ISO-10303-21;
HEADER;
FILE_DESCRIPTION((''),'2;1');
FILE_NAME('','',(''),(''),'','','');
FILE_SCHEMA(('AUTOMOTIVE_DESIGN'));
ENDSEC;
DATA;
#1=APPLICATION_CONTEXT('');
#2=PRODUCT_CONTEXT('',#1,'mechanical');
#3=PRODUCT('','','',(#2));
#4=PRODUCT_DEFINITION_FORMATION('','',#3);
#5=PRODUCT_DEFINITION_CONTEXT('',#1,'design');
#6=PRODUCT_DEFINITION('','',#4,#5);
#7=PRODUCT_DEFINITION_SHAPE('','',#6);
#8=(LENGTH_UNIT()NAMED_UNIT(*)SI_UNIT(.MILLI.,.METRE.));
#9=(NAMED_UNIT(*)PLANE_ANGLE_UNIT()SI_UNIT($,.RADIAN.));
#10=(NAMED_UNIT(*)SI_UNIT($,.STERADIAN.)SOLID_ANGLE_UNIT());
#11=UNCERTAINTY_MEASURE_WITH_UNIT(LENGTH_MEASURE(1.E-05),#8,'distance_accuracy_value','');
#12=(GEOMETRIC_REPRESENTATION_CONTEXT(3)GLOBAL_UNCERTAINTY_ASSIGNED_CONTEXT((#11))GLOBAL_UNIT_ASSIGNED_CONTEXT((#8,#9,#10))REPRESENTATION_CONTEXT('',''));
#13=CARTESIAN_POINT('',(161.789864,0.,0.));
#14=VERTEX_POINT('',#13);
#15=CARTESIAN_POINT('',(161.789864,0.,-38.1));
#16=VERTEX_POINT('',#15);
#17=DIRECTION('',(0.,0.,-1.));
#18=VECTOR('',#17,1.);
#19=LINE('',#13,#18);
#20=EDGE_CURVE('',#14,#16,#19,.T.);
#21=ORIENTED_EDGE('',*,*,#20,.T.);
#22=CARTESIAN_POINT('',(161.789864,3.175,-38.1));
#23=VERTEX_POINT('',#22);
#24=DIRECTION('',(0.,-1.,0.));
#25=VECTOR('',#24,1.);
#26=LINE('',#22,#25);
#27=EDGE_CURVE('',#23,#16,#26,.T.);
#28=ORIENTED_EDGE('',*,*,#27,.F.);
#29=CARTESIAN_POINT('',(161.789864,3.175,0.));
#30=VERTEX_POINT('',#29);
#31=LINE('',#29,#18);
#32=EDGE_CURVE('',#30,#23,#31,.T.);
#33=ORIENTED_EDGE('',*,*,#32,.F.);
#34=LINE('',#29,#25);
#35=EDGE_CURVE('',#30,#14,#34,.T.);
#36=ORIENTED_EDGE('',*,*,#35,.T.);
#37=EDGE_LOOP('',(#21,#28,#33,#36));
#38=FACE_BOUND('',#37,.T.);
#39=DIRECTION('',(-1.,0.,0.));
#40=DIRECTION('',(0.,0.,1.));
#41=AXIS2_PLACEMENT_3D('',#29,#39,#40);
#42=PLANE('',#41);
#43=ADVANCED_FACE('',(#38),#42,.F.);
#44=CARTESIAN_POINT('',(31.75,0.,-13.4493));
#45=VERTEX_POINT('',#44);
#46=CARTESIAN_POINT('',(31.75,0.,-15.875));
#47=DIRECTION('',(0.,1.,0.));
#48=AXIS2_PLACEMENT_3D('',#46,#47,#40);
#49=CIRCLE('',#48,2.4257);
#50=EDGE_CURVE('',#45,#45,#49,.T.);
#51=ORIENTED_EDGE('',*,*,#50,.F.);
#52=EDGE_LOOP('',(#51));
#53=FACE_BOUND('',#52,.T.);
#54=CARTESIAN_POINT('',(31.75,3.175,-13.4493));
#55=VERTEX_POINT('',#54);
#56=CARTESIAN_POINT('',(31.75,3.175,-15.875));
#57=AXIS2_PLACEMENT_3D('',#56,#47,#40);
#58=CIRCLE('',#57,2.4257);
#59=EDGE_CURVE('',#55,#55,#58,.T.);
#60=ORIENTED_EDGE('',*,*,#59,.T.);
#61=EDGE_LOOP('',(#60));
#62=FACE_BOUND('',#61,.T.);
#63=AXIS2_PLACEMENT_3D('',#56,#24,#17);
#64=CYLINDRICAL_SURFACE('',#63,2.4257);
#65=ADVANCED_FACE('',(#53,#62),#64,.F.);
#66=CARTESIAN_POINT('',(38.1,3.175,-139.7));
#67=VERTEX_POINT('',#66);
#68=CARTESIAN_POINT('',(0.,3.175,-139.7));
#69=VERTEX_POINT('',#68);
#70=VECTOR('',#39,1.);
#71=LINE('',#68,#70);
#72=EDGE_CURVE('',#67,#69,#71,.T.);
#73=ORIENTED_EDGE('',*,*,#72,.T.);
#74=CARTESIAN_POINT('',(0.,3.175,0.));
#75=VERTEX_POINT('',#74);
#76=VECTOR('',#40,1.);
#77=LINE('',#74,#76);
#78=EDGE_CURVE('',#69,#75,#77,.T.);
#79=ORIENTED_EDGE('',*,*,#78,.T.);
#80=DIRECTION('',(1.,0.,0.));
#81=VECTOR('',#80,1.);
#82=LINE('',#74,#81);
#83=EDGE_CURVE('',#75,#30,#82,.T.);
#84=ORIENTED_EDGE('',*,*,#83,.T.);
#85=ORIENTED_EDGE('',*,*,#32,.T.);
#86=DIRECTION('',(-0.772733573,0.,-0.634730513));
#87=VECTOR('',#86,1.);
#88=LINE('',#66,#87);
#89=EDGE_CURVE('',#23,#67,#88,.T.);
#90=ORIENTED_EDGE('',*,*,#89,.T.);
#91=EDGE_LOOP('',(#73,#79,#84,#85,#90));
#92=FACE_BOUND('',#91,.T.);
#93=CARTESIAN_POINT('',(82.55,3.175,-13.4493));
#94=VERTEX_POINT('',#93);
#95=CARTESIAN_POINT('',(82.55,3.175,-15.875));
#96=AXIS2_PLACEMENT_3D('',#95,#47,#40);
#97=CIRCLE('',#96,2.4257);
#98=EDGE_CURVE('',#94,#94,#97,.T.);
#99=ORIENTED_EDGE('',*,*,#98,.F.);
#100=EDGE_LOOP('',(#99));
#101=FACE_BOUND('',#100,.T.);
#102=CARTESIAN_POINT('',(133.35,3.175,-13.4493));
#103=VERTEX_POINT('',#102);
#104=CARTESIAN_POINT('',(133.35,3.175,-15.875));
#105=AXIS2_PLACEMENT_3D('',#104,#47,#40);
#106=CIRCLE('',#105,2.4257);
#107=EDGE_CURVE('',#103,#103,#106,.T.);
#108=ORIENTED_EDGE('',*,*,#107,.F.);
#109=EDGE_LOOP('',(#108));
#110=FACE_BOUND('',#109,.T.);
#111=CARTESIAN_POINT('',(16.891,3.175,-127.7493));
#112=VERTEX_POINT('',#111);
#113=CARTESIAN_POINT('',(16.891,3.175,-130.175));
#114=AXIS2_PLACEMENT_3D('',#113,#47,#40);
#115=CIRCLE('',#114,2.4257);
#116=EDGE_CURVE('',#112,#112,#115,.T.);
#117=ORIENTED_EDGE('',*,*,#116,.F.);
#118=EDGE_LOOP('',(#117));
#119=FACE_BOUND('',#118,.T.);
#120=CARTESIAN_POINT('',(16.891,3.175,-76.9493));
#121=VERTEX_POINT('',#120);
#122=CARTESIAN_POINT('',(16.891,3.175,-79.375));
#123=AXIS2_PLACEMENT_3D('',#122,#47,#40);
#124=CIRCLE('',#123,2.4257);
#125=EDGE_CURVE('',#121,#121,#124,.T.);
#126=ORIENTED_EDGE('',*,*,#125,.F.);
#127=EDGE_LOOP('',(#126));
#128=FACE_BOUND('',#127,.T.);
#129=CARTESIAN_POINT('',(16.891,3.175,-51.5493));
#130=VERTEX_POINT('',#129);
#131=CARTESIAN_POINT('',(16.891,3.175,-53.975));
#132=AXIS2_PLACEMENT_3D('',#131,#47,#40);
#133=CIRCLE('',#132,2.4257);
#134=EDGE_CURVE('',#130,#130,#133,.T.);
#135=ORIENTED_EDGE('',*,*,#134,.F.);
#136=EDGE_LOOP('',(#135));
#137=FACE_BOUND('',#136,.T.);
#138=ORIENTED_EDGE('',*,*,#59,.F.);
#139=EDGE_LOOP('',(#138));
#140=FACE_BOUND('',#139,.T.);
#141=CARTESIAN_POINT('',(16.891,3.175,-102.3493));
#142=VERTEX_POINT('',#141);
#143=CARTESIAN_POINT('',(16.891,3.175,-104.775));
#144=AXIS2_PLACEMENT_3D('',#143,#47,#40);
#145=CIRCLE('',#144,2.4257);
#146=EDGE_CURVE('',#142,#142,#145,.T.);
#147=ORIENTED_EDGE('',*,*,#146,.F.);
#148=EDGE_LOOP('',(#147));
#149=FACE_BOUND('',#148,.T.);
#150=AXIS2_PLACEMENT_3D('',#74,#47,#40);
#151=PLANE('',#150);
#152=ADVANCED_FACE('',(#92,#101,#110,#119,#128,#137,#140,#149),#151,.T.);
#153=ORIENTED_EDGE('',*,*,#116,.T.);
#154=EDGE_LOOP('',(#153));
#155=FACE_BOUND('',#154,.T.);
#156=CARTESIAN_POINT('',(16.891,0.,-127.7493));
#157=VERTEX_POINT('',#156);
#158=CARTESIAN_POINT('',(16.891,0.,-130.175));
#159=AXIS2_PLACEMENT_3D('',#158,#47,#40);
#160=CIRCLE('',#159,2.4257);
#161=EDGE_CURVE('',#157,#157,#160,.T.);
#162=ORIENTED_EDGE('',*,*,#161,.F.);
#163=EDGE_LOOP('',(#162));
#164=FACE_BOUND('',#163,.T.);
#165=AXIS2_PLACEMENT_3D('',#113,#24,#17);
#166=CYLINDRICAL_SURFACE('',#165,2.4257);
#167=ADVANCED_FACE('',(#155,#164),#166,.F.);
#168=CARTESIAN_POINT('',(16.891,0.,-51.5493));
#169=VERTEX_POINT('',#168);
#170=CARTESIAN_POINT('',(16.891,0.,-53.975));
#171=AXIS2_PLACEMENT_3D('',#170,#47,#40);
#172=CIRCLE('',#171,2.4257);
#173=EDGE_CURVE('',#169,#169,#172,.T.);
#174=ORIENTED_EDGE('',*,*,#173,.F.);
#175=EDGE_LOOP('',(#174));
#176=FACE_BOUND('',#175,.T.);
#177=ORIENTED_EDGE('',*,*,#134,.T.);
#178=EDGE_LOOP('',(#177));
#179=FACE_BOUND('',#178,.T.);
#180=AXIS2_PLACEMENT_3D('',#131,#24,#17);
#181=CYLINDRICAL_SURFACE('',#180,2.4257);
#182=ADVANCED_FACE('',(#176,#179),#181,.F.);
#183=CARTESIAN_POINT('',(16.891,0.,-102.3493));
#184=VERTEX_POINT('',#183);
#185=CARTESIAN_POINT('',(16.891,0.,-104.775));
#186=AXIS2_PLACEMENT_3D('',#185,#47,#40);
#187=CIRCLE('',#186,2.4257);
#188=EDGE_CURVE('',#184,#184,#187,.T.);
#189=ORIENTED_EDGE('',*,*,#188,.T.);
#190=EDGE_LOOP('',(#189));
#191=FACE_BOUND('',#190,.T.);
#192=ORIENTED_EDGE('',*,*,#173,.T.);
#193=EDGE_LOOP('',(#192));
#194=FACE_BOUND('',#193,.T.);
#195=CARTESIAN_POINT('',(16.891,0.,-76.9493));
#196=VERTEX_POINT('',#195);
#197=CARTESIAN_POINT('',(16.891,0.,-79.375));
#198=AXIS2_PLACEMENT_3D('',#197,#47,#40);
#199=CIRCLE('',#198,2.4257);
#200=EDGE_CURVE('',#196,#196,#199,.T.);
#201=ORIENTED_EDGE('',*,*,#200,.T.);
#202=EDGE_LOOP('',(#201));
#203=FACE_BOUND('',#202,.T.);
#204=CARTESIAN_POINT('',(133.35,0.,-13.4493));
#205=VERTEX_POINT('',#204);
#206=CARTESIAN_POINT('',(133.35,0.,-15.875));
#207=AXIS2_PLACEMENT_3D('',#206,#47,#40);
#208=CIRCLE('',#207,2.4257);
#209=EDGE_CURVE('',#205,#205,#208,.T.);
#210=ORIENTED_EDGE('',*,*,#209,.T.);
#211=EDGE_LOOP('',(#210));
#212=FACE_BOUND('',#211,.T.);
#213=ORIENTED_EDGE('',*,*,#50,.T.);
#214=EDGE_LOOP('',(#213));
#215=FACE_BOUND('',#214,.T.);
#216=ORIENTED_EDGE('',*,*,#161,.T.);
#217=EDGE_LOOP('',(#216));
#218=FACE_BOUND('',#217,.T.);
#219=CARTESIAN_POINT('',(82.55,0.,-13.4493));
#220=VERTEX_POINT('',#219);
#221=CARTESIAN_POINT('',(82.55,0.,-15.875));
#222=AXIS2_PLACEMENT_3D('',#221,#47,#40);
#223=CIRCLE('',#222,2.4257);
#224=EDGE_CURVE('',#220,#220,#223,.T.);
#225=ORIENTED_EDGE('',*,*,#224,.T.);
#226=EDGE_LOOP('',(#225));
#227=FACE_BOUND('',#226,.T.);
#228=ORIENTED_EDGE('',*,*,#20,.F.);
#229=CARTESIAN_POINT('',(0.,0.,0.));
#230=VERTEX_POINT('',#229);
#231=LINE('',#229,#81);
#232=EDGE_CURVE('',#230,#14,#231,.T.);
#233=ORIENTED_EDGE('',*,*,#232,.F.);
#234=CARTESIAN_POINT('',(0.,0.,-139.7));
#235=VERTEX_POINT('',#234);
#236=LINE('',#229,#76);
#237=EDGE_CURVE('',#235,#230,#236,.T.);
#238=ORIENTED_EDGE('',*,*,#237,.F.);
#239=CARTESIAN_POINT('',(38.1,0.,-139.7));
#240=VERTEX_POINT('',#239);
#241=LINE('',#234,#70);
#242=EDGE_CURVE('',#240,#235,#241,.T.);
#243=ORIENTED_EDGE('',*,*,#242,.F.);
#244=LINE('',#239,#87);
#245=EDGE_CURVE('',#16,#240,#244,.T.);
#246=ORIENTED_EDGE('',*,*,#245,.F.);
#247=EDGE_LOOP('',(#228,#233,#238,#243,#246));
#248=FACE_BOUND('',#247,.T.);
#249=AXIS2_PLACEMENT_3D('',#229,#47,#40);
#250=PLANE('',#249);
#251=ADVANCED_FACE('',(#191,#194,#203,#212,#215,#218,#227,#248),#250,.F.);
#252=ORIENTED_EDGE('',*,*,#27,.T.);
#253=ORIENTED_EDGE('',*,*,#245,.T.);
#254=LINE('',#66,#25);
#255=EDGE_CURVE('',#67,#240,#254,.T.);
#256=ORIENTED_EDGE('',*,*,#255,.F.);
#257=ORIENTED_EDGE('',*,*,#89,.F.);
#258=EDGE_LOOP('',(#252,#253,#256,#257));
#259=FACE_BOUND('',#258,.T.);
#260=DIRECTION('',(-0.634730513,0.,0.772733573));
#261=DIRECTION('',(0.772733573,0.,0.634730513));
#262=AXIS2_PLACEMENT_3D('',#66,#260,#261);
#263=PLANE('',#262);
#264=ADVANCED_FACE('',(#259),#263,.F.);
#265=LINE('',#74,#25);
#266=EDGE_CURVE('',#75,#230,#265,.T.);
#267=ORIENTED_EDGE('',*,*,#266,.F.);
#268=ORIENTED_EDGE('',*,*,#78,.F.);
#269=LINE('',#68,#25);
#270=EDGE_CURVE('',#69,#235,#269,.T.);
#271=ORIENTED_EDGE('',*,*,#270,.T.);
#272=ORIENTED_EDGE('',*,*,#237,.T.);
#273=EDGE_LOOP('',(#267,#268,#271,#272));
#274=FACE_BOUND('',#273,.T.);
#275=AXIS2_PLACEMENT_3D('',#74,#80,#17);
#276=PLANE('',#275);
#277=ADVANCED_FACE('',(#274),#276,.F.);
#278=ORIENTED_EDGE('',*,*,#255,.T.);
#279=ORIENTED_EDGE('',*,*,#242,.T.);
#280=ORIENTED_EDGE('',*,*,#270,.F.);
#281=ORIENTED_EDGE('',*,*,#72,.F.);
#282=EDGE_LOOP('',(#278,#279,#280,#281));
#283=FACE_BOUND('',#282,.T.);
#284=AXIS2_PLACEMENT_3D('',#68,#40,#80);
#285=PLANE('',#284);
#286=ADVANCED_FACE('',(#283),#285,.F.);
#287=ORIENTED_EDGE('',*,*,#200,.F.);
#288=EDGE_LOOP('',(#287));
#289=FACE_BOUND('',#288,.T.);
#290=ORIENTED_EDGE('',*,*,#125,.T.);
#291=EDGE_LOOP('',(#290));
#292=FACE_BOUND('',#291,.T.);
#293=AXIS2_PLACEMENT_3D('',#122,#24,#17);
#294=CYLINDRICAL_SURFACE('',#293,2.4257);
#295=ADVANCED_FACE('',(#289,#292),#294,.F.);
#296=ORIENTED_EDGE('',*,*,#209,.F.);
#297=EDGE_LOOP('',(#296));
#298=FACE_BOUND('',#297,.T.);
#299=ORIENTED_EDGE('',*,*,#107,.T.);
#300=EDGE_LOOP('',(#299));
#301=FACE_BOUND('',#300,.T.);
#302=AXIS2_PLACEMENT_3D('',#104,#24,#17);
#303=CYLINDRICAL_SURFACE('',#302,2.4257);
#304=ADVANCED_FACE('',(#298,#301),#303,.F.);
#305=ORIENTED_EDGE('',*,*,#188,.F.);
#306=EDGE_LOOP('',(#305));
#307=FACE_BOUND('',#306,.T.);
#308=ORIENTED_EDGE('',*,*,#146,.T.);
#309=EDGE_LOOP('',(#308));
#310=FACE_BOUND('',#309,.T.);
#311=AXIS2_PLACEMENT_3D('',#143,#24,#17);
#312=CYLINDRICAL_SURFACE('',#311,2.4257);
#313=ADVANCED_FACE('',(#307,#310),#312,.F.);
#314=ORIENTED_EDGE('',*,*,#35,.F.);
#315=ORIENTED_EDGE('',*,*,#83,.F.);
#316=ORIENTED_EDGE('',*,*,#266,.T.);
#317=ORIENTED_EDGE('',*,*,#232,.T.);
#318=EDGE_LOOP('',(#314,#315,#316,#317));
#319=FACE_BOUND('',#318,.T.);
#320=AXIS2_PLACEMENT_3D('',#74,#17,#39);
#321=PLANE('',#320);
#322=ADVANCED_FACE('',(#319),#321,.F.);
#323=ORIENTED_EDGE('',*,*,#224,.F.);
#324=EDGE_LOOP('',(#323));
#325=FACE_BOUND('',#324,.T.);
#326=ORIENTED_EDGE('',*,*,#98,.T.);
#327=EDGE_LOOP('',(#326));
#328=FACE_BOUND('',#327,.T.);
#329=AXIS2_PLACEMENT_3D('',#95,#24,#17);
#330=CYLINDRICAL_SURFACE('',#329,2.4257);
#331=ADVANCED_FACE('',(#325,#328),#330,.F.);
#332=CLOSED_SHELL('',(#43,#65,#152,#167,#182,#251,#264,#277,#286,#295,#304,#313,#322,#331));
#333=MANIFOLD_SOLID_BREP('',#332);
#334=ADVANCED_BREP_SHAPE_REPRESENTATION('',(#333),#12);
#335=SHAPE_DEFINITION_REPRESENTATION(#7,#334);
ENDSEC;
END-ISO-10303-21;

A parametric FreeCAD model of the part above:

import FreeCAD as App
import Part
import Sketcher
Q = App.Units.Quantity

doc = App.newDocument("Part")
params = doc.addObject("Spreadsheet::Sheet", "Params")
for row, (alias, value) in enumerate([
    ("sketch1_diameter", "0.191 in"),
    ("sketch1_width", "1.5 in"),
    ("sketch1_height", "5.5 in"),
    ("pad1_length", "0.125 in"),
], start=1):
    params.set(f"A{row}", alias)
    params.set(f"B{row}", "=" + value)
    params.setAlias(f"B{row}", alias)

body = doc.addObject("PartDesign::Body", "Body")

# Sketch on XZ plane
sketch1 = doc.addObject("Sketcher::SketchObject", "Sketch")
body.addObject(sketch1)
sketch1.AttachmentSupport = (doc.XZ_Plane, [""])
sketch1.MapMode = "FlatFace"
sketch1.addGeometry([
    Part.LineSegment(App.Vector(0, -139.7, 0), App.Vector(0, 0, 0)),  # 0
    Part.LineSegment(App.Vector(0, 0, 0), App.Vector(161.8, 0, 0)),  # 1
    Part.LineSegment(App.Vector(161.8, 0, 0), App.Vector(161.8, -38.1, 0)),  # 2
    Part.LineSegment(App.Vector(161.8, -38.1, 0), App.Vector(38.1, -139.7, 0)),  # 3
    Part.LineSegment(App.Vector(38.1, -139.7, 0), App.Vector(0, -139.7, 0)),  # 4
    Part.Circle(App.Vector(133.3, -15.9, 0), App.Vector(0, 0, 1), 2.4),  # 5
    Part.Circle(App.Vector(82.5, -15.9, 0), App.Vector(0, 0, 1), 2.4),  # 6
    Part.Circle(App.Vector(31.8, -15.9, 0), App.Vector(0, 0, 1), 2.4),  # 7
    Part.Circle(App.Vector(16.9, -54, 0), App.Vector(0, 0, 1), 2.4),  # 8
    Part.Circle(App.Vector(16.9, -79.4, 0), App.Vector(0, 0, 1), 2.4),  # 9
    Part.Circle(App.Vector(16.9, -104.8, 0), App.Vector(0, 0, 1), 2.4),  # 10
    Part.Circle(App.Vector(16.9, -130.2, 0), App.Vector(0, 0, 1), 2.4),  # 11
], False)
sketch1.addConstraint([
    Sketcher.Constraint("Coincident", 0, 2, 1, 1),
    Sketcher.Constraint("Coincident", 1, 2, 2, 1),
    Sketcher.Constraint("Coincident", 2, 2, 3, 1),
    Sketcher.Constraint("Coincident", 3, 2, 4, 1),
    Sketcher.Constraint("Coincident", 4, 2, 0, 1),
    Sketcher.Constraint("Vertical", 0),
    Sketcher.Constraint("Horizontal", 1),
    Sketcher.Constraint("Vertical", 2),
    Sketcher.Constraint("Horizontal", 4),
    Sketcher.Constraint("Coincident", 0, 2, -1, 1),
    Sketcher.Constraint("Equal", 5, 6),
    Sketcher.Constraint("Equal", 6, 7),
    Sketcher.Constraint("Equal", 7, 8),
    Sketcher.Constraint("Equal", 8, 9),
    Sketcher.Constraint("Equal", 9, 10),
    Sketcher.Constraint("Equal", 10, 11),
    Sketcher.Constraint("Horizontal", 5, 3, 6, 3),
    Sketcher.Constraint("Horizontal", 6, 3, 7, 3),
    Sketcher.Constraint("Vertical", 8, 3, 9, 3),
    Sketcher.Constraint("Vertical", 9, 3, 10, 3),
    Sketcher.Constraint("Vertical", 10, 3, 11, 3),
    Sketcher.Constraint("Equal", 4, 2),
    Sketcher.Constraint("Diameter", 5, Q("0.191 in")),
    Sketcher.Constraint("DistanceX", 4, 2, 4, 1, Q("1.5 in")),
    Sketcher.Constraint("DistanceY", 0, 1, 0, 2, Q("5.5 in")),
    Sketcher.Constraint("DistanceX", 6, 3, 5, 3, Q("2 in")),
    Sketcher.Constraint("DistanceX", 7, 3, 6, 3, Q("2 in")),
    Sketcher.Constraint("DistanceY", 9, 3, 8, 3, Q("1 in")),
    Sketcher.Constraint("DistanceY", 10, 3, 9, 3, Q("1 in")),
    Sketcher.Constraint("DistanceY", 11, 3, 10, 3, Q("1 in")),
    Sketcher.Constraint("Angle", 3, Q("-140.6 deg")),
    Sketcher.Constraint("DistanceY", 8, 3, 7, 3, Q("1.5 in")),
    Sketcher.Constraint("DistanceX", -1, 1, 5, 3, Q("5.25 in")),
    Sketcher.Constraint("DistanceY", 5, 3, -1, 1, Q("0.625 in")),
    Sketcher.Constraint("DistanceX", -1, 1, 8, 3, Q("0.665 in")),
])
sketch1.setExpression("Constraints[22]", "Params.sketch1_diameter")
sketch1.setExpression("Constraints[23]", "Params.sketch1_width")
sketch1.setExpression("Constraints[24]", "Params.sketch1_height")
pad1 = doc.addObject("PartDesign::Pad", "Pad")
body.addObject(pad1)
pad1.Profile = sketch1
pad1.setExpression("Length", "Params.pad1_length")
pad1.Reversed = True

doc.recompute()
